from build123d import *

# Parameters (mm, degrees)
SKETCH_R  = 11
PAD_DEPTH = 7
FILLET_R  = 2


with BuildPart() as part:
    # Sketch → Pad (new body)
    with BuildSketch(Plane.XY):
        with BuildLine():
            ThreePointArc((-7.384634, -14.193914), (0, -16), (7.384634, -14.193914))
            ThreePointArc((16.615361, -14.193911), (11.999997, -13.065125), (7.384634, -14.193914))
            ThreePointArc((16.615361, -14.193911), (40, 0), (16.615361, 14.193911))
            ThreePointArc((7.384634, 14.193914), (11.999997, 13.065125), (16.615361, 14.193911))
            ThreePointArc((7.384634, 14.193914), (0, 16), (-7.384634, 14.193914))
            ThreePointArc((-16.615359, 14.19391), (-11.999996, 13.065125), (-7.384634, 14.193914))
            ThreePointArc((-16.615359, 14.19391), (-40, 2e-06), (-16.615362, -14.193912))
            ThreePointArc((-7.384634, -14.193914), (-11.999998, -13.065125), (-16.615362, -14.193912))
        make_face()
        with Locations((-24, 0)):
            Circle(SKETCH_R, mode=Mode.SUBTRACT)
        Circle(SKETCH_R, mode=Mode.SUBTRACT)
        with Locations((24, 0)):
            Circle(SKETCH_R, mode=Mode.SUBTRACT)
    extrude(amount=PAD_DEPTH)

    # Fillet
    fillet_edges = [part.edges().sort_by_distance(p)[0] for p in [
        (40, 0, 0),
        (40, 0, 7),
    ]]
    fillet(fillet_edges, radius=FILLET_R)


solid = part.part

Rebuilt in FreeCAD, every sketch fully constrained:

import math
import FreeCAD as App
import Part
import Sketcher
from FreeCAD import Vector
Q = App.Units.Quantity


def edges_at(feature, points):
    """Names of the edges that pass closest to the given points."""
    edges = feature.Shape.Edges
    near = lambda p: min(range(len(edges)), key=lambda i: edges[i].distToShape(Part.Vertex(*p))[0])
    return sorted({f"Edge{near(p) + 1}" for p in points})

doc = App.newDocument("Part")
params = doc.addObject("Spreadsheet::Sheet", "Params")
for row, (alias, value) in enumerate([
    ("sketch1_diameter", "22 mm"),
    ("sketch1_radius", "16 mm"),
    ("pad1_length", "7 mm"),
    ("fillet_radius", "2 mm"),
], start=1):
    params.set(f"A{row}", alias)
    params.set(f"B{row}", "=" + value)
    params.setAlias(f"B{row}", alias)

body = doc.addObject("PartDesign::Body", "Body")

# Sketch on XY plane
sketch1 = body.newObject("Sketcher::SketchObject", "Sketch")
sketch1.AttachmentSupport = (doc.getObject("XY_Plane"), [""])
sketch1.MapMode = "FlatFace"
sketch1.addGeometry(Part.ArcOfCircle(Part.Circle(Vector(0, 0.000004, 0), Vector(0, 0, 1), 16.000004), math.radians(-117.486494), math.radians(-62.513506)), False)
sketch1.addGeometry(Part.ArcOfCircle(Part.Circle(Vector(12, -23.065121, 0), Vector(0, 0, 1), 9.999996), math.radians(62.513717), math.radians(117.48632)), False)
sketch1.addGeometry(Part.ArcOfCircle(Part.Circle(Vector(24, 0, 0), Vector(0, 0, 1), 16), math.radians(-117.486521), math.radians(117.486521)), False)
sketch1.addGeometry(Part.ArcOfCircle(Part.Circle(Vector(12, 23.065121, 0), Vector(0, 0, 1), 9.999996), math.radians(-117.48632), math.radians(-62.513717)), False)
sketch1.addGeometry(Part.ArcOfCircle(Part.Circle(Vector(0, -0.000004, 0), Vector(0, 0, 1), 16.000004), math.radians(62.513506), math.radians(117.486494)), False)
sketch1.addGeometry(Part.ArcOfCircle(Part.Circle(Vector(-12, 23.065121, 0), Vector(0, 0, 1), 9.999996), math.radians(-117.48627), math.radians(-62.51368)), False)
sketch1.addGeometry(Part.ArcOfCircle(Part.Circle(Vector(-24, 0, 0), Vector(0, 0, 1), 16), math.radians(62.513472), math.radians(297.486516)), False)
sketch1.addGeometry(Part.ArcOfCircle(Part.Circle(Vector(-12, -23.065119, 0), Vector(0, 0, 1), 9.999994), math.radians(62.513678), math.radians(117.486298)), False)
sketch1.addGeometry(Part.Circle(Vector(-24, 0, 0), Vector(0, 0, 1), 11), False)
sketch1.addGeometry(Part.Circle(Vector(0, 0, 0), Vector(0, 0, 1), 11), False)
sketch1.addGeometry(Part.Circle(Vector(24, 0, 0), Vector(0, 0, 1), 11), False)
sketch1.addConstraint(Sketcher.Constraint("Coincident", 0, 2, 1, 2))
sketch1.addConstraint(Sketcher.Constraint("Coincident", 1, 1, 2, 1))
sketch1.addConstraint(Sketcher.Constraint("Coincident", 2, 2, 3, 2))
sketch1.addConstraint(Sketcher.Constraint("Coincident", 3, 1, 4, 1))
sketch1.addConstraint(Sketcher.Constraint("Coincident", 4, 2, 5, 2))
sketch1.addConstraint(Sketcher.Constraint("Coincident", 5, 1, 6, 1))
sketch1.addConstraint(Sketcher.Constraint("Coincident", 6, 2, 7, 2))
sketch1.addConstraint(Sketcher.Constraint("Coincident", 7, 1, 0, 1))
sketch1.addConstraint(Sketcher.Constraint("Coincident", 0, 3, -1, 1))
sketch1.addConstraint(Sketcher.Constraint("Coincident", 4, 3, -1, 1))
sketch1.addConstraint(Sketcher.Constraint("Coincident", 9, 3, -1, 1))
sketch1.addConstraint(Sketcher.Constraint("Coincident", 8, 3, 6, 3))
sketch1.addConstraint(Sketcher.Constraint("Coincident", 10, 3, 2, 3))
sketch1.addConstraint(Sketcher.Constraint("Equal", 1, 3))
sketch1.addConstraint(Sketcher.Constraint("Equal", 0, 4))
sketch1.addConstraint(Sketcher.Constraint("Equal", 3, 5))
sketch1.addConstraint(Sketcher.Constraint("Equal", 2, 6))
sketch1.addConstraint(Sketcher.Constraint("Equal", 5, 7))
sketch1.addConstraint(Sketcher.Constraint("Equal", 8, 9))
sketch1.addConstraint(Sketcher.Constraint("Equal", 9, 10))
sketch1.addConstraint(Sketcher.Constraint("Symmetric", 2, 3, 6, 3, -1, 1))
sketch1.addConstraint(Sketcher.Constraint("Symmetric", 2, 2, 5, 1, -2))
sketch1.addConstraint(Sketcher.Constraint("Horizontal", 3, 1, 4, 2))
sketch1.addConstraint(Sketcher.Constraint("Horizontal", 1, 1, 6, 2))
sketch1.addConstraint(Sketcher.Constraint("Horizontal", 6, 2, 7, 1))
sketch1.addConstraint(Sketcher.Constraint("Vertical", 1, 1, 2, 2))
sketch1.addConstraint(Sketcher.Constraint("Vertical", 0, 2, 3, 1))
sketch1.addConstraint(Sketcher.Constraint("Vertical", 4, 2, 7, 1))
sketch1.addConstraint(Sketcher.Constraint("Diameter", 8, Q("22 mm")))
sketch1.addConstraint(Sketcher.Constraint("Radius", 2, Q("16 mm")))
sketch1.addConstraint(Sketcher.Constraint("DistanceX", -1, 1, 1, 3, Q("12 mm")))
sketch1.addConstraint(Sketcher.Constraint("DistanceX", -1, 1, 2, 3, Q("24 mm")))
sketch1.addConstraint(Sketcher.Constraint("Radius", 1, Q("9.999996 mm")))
sketch1.addConstraint(Sketcher.Constraint("DistanceX", -1, 1, 1, 1, Q("16.615361 mm")))
sketch1.setExpression("Constraints[28]", "Params.sketch1_diameter")
sketch1.setExpression("Constraints[29]", "Params.sketch1_radius")
pad1 = body.newObject("PartDesign::Pad", "Pad")
pad1.Profile = sketch1
pad1.setExpression("Length", "Params.pad1_length")
doc.recompute()

fillet = body.newObject("PartDesign::Fillet", "Fillet")
fillet.Base = (pad1, edges_at(pad1, [(40, 0, 0), (40, 0, 7)]))
fillet.setExpression("Radius", "Params.fillet_radius")

doc.recompute()
